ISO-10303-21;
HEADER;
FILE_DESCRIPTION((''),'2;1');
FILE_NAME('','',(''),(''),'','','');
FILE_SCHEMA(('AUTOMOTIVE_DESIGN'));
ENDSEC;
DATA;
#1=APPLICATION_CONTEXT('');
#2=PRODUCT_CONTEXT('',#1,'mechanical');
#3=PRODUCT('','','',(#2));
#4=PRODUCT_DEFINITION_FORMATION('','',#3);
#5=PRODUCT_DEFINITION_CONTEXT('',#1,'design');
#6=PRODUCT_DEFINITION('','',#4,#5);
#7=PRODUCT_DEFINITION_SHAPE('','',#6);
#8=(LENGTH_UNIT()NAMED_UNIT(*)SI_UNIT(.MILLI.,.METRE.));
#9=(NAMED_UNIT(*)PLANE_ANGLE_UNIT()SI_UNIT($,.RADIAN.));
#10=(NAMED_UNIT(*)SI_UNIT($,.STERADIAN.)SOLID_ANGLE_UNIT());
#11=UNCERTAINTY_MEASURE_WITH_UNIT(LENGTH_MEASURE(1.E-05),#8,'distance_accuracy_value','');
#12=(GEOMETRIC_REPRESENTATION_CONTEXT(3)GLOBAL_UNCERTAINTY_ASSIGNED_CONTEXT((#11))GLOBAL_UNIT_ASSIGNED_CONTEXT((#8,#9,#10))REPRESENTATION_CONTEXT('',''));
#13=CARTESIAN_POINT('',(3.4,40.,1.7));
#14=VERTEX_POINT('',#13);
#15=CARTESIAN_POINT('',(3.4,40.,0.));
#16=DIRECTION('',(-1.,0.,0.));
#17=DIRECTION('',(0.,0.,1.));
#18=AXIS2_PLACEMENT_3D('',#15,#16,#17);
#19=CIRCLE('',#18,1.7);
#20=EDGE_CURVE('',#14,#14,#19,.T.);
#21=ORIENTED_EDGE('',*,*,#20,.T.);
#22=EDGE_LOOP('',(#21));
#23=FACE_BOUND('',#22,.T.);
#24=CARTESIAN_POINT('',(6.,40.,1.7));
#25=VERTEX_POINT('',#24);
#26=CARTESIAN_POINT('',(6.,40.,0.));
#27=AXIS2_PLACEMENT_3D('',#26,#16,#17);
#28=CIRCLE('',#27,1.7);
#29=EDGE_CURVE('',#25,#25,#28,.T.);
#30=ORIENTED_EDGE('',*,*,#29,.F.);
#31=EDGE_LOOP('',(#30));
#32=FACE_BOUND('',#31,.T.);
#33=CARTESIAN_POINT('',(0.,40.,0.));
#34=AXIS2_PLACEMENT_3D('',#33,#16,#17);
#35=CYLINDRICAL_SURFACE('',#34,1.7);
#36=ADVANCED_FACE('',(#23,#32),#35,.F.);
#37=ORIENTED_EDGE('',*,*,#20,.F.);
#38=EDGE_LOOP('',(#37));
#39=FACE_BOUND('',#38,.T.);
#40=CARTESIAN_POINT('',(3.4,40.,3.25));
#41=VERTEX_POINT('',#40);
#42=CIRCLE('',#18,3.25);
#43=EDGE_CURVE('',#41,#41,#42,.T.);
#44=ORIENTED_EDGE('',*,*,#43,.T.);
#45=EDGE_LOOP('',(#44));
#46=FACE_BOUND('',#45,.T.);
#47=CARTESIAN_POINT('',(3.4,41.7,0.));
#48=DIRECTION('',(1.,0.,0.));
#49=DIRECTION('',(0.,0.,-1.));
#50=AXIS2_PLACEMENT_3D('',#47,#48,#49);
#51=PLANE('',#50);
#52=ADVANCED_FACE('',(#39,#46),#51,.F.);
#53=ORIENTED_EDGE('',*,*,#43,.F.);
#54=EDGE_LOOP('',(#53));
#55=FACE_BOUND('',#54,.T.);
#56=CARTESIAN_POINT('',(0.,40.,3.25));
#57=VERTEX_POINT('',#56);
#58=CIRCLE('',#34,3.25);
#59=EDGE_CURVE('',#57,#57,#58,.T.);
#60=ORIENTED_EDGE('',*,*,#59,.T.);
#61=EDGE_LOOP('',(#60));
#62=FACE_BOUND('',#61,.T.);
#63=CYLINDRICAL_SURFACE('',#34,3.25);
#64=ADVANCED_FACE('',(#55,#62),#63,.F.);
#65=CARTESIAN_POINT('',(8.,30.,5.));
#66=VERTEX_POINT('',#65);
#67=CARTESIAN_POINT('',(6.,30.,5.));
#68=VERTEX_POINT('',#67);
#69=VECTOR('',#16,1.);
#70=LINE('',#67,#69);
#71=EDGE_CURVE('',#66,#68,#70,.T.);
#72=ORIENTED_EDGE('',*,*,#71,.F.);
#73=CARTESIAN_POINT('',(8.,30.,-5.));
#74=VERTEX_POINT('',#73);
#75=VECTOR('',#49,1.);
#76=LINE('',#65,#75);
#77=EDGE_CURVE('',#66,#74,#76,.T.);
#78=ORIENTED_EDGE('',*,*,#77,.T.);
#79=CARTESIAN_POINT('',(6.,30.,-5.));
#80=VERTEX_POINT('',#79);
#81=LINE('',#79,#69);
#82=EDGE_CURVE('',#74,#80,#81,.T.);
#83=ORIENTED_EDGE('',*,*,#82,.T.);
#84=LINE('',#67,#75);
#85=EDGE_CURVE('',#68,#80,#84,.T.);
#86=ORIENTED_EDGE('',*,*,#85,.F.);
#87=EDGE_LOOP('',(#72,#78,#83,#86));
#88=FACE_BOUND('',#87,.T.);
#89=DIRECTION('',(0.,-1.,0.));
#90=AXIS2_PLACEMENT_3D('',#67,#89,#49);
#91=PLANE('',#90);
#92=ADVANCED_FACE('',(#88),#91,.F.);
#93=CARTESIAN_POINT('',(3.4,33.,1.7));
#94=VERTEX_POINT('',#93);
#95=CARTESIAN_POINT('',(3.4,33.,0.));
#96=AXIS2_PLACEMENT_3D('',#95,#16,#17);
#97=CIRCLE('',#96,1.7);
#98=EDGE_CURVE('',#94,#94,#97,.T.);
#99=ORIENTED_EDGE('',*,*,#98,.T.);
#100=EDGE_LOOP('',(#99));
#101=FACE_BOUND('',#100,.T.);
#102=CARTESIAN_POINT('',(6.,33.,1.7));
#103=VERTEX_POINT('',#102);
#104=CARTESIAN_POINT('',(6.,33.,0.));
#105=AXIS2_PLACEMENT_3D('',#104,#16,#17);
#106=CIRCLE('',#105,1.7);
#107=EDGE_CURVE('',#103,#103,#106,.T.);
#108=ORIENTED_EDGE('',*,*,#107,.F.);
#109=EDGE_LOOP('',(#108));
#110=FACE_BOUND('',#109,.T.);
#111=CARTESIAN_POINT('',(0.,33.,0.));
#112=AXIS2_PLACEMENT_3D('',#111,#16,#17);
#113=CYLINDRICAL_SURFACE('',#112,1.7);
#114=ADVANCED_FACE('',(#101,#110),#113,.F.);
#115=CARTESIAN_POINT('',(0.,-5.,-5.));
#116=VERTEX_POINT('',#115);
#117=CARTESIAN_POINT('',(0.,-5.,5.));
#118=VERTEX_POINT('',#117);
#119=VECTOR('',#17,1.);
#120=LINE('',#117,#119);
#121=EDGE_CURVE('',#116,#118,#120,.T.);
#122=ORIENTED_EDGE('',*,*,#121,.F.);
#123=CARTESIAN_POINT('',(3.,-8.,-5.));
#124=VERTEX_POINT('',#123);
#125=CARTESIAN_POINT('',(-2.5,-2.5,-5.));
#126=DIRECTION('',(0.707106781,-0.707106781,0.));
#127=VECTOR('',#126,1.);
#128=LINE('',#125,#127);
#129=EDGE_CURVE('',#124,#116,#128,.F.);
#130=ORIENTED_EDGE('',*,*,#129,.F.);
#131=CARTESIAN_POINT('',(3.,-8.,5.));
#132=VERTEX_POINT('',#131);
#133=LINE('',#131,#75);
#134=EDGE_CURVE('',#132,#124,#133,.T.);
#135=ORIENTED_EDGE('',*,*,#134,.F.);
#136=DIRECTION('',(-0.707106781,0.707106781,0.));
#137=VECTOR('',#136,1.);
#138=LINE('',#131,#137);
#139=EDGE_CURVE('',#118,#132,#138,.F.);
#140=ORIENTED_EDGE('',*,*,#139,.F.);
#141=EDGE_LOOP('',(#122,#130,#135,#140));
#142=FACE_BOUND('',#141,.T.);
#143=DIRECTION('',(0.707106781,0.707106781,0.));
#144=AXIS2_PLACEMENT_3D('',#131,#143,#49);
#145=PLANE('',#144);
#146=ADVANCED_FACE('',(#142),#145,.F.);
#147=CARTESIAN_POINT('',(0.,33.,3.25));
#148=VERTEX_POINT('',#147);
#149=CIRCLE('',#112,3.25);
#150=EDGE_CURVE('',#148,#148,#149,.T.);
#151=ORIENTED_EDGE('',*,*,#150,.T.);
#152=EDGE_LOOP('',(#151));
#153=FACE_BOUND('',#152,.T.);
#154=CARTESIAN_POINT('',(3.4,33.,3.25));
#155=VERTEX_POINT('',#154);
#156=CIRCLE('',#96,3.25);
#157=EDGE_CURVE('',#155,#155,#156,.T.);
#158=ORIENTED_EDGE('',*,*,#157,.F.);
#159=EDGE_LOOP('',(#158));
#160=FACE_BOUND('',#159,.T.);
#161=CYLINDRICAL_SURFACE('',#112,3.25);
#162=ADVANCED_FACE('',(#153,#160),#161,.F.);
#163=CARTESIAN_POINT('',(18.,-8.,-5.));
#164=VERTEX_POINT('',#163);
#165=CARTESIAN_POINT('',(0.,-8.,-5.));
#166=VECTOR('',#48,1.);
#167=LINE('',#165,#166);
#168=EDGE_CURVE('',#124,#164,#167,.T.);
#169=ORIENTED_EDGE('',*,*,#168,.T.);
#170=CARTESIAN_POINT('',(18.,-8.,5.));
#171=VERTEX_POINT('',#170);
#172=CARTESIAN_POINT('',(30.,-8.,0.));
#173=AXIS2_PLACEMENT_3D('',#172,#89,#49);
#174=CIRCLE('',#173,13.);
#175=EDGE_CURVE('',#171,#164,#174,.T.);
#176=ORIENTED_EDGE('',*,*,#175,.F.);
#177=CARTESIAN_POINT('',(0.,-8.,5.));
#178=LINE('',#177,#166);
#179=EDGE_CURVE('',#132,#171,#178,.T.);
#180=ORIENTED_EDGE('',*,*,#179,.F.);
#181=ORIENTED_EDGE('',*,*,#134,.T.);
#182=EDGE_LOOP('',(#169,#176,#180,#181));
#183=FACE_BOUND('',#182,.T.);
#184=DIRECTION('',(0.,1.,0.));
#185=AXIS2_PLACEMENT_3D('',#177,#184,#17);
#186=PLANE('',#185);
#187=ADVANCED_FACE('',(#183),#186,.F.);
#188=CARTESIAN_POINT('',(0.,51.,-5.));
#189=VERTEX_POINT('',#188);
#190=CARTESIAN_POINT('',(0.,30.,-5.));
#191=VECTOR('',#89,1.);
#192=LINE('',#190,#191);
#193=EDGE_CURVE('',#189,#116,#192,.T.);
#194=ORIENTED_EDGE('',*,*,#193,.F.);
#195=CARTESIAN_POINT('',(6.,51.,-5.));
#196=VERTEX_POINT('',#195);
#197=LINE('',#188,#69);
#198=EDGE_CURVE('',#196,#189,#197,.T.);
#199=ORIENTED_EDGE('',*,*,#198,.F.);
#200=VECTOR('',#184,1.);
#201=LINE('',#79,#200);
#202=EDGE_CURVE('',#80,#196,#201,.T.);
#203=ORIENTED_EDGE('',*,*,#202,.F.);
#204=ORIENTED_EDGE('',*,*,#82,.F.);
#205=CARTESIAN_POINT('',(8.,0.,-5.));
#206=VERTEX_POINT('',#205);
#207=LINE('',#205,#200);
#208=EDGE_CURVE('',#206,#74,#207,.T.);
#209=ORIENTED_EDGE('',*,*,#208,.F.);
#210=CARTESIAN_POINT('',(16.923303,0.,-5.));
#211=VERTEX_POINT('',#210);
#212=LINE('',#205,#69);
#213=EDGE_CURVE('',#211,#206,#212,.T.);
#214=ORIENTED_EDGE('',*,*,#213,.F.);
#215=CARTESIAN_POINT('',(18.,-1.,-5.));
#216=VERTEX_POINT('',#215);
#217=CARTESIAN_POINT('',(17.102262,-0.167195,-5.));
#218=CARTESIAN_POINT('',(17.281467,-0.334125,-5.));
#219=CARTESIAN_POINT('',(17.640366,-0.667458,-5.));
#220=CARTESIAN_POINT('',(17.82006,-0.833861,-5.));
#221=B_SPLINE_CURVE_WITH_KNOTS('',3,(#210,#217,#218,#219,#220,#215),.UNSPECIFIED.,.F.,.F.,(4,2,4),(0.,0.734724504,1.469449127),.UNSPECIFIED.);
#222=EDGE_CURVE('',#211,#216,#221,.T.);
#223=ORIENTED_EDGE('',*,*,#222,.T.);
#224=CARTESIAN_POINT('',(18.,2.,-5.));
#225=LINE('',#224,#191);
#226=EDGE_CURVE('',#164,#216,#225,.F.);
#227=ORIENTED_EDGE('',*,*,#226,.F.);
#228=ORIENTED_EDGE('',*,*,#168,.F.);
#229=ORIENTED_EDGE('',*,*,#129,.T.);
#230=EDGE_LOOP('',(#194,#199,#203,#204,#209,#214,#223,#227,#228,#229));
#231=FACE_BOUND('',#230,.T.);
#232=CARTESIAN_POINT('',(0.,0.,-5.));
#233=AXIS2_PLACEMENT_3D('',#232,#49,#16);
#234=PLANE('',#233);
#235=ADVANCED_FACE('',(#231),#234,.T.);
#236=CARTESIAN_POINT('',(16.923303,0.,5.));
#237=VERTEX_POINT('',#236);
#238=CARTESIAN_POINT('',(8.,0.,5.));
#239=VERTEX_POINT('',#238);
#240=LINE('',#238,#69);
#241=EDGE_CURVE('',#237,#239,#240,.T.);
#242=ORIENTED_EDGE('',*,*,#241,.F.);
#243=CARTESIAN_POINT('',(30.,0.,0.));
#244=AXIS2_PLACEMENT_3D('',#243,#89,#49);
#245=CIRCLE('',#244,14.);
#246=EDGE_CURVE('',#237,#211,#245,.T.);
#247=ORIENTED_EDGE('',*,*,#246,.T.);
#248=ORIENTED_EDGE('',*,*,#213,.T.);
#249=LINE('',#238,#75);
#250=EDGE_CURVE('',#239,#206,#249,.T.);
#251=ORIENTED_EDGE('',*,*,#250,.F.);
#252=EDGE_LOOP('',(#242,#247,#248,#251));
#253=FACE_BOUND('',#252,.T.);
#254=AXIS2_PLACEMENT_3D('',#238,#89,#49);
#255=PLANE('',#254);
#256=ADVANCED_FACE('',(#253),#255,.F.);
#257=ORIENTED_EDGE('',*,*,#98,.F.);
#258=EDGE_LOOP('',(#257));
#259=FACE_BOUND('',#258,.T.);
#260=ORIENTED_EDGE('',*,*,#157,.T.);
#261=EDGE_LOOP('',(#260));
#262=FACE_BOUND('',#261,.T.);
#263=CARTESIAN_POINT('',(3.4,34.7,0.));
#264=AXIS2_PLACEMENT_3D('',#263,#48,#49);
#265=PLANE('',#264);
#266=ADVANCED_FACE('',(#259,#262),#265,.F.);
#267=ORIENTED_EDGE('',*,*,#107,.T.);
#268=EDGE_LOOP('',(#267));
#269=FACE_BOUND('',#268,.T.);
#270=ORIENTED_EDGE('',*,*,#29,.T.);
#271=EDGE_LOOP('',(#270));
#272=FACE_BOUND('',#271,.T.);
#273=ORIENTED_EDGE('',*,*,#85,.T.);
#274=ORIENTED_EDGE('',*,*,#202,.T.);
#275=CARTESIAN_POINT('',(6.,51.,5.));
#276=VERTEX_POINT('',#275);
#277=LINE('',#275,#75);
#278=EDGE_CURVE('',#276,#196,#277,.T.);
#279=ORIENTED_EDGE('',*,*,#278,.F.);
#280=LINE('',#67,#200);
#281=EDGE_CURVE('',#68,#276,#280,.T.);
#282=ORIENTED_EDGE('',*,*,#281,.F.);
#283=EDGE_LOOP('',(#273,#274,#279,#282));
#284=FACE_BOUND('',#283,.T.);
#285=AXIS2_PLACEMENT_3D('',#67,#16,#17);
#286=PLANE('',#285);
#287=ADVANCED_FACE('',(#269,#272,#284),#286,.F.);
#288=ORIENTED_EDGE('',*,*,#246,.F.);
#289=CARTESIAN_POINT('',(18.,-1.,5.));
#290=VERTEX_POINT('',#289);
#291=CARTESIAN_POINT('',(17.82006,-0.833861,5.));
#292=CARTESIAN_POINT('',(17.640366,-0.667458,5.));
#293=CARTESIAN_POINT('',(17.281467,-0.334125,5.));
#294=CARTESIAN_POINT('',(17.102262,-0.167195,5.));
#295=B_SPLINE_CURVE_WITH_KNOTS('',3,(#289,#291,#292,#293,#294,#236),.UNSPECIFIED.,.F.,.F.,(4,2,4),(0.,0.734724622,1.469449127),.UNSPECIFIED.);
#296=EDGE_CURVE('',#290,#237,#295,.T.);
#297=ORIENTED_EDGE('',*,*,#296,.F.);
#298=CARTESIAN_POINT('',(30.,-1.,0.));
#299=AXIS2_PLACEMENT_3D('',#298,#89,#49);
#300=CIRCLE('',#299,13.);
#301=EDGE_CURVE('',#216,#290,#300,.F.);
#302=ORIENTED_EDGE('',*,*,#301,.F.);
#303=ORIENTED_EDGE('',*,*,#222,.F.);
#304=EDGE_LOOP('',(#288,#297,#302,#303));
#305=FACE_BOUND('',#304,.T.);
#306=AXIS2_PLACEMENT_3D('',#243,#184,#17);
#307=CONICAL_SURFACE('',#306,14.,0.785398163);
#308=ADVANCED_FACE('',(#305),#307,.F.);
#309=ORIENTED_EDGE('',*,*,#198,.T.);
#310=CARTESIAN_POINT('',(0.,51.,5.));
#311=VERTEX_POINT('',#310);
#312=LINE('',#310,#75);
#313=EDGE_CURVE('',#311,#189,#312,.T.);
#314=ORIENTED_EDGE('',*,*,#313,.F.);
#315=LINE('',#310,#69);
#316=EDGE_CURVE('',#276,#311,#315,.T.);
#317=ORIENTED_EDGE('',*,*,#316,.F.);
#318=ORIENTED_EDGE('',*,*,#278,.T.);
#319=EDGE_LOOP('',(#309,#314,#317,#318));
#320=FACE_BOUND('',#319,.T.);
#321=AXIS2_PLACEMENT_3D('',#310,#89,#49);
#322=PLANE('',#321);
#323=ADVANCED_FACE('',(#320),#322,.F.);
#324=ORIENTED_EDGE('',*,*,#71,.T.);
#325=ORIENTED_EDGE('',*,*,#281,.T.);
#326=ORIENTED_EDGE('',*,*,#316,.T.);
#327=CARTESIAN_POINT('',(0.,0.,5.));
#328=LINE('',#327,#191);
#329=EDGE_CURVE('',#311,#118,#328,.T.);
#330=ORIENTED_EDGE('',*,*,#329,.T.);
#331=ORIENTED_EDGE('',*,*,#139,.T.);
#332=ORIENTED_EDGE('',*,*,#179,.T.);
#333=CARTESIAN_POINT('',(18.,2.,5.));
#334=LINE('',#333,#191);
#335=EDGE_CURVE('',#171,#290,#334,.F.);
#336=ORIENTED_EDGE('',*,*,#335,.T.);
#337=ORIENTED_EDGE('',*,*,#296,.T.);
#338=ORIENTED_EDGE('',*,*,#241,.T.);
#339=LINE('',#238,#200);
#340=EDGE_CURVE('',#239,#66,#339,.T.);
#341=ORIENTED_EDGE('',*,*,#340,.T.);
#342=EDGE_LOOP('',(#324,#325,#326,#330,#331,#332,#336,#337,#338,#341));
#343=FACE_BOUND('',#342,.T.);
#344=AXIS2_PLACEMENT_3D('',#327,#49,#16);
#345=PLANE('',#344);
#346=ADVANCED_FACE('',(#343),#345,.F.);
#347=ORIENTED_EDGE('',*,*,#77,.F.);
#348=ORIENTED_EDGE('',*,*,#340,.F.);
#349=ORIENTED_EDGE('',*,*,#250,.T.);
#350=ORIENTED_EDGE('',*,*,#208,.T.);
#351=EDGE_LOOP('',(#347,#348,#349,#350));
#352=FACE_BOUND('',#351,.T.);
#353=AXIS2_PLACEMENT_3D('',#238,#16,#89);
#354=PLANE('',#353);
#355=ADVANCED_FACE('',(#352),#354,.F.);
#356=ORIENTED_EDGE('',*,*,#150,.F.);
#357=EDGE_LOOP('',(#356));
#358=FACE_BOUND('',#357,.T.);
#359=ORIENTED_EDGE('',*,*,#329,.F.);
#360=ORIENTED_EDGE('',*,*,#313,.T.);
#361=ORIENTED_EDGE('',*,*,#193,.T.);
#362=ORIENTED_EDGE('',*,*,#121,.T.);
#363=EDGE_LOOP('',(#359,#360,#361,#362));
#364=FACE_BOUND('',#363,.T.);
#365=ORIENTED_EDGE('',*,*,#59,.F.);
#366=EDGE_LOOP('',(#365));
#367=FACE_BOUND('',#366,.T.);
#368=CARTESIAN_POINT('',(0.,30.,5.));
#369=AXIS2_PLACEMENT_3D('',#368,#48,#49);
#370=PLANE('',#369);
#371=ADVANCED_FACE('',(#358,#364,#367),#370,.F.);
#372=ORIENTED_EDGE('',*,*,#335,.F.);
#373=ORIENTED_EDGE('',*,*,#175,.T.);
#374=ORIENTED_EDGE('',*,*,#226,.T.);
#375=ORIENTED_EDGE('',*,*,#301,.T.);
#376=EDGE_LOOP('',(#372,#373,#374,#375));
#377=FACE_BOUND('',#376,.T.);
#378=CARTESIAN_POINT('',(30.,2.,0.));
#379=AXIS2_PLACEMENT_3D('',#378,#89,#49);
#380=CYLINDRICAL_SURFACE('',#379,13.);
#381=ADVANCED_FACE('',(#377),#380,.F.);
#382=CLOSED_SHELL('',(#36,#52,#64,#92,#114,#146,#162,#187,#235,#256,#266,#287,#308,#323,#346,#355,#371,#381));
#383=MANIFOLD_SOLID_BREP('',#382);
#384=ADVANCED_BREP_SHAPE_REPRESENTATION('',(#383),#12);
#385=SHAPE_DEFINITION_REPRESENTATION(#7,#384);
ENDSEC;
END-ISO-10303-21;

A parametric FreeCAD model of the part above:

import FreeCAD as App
import Part
import Sketcher


def edges_at(feature, points):
    """Names of the edges that pass closest to the given points."""
    edges = feature.Shape.Edges
    near = lambda p: min(range(len(edges)), key=lambda i: edges[i].distToShape(Part.Vertex(*p))[0])
    return sorted({f"Edge{near(p) + 1}" for p in points})

doc = App.newDocument("Part")
body = doc.addObject("PartDesign::Body", "Body")

# Sketch on XY plane
sketch1 = body.newObject("Sketcher::SketchObject", "Sketch")
sketch1.AttachmentSupport = (doc.getObject("XY_Plane"), [""])
sketch1.MapMode = "FlatFace"
sketch1.addGeometry([
    Part.LineSegment(App.Vector(20, 0, 0), App.Vector(8, 0, 0)),  # 0
    Part.LineSegment(App.Vector(8, 0, 0), App.Vector(8, 30, 0)),  # 1
    Part.LineSegment(App.Vector(8, 30, 0), App.Vector(6, 30, 0)),  # 2
    Part.LineSegment(App.Vector(6, 30, 0), App.Vector(6, 51, 0)),  # 3
    Part.LineSegment(App.Vector(6, 51, 0), App.Vector(0, 51, 0)),  # 4
    Part.LineSegment(App.Vector(0, 51, 0), App.Vector(0, -8, 0)),  # 5
    Part.LineSegment(App.Vector(0, -8, 0), App.Vector(20, -8, 0)),  # 6
    Part.LineSegment(App.Vector(20, -8, 0), App.Vector(20, 0, 0)),  # 7
], False)
sketch1.addConstraint([
    Sketcher.Constraint("Coincident", 0, 2, 1, 1),
    Sketcher.Constraint("Coincident", 1, 2, 2, 1),
    Sketcher.Constraint("Coincident", 2, 2, 3, 1),
    Sketcher.Constraint("Coincident", 3, 2, 4, 1),
    Sketcher.Constraint("Coincident", 4, 2, 5, 1),
    Sketcher.Constraint("Coincident", 5, 2, 6, 1),
    Sketcher.Constraint("Coincident", 6, 2, 7, 1),
    Sketcher.Constraint("Coincident", 7, 2, 0, 1),
    Sketcher.Constraint("Horizontal", 0),
    Sketcher.Constraint("Vertical", 1),
    Sketcher.Constraint("Horizontal", 2),
    Sketcher.Constraint("Vertical", 3),
    Sketcher.Constraint("Horizontal", 4),
    Sketcher.Constraint("Vertical", 5),
    Sketcher.Constraint("Horizontal", 6),
    Sketcher.Constraint("Vertical", 7),
    Sketcher.Constraint("PointOnObject", 0, 2, -1),
    Sketcher.Constraint("PointOnObject", 4, 2, -2),
    Sketcher.Constraint("DistanceX", 0, 2, 0, 1, 12.0),
    Sketcher.Constraint("DistanceX", 2, 2, 2, 1, 2.0),
    Sketcher.Constraint("DistanceX", 4, 2, 4, 1, 6.0),
    Sketcher.Constraint("DistanceY", 1, 1, 1, 2, 30.0),
    Sketcher.Constraint("DistanceY", 3, 1, 3, 2, 21.0),
    Sketcher.Constraint("DistanceY", 5, 2, 5, 1, 59.0),
])
pad1 = body.newObject("PartDesign::Pad", "Pad")
pad1.Profile = sketch1
pad1.Length = 10
pad1.Midplane = True

# Sketch on XZ plane
sketch2 = body.newObject("Sketcher::SketchObject", "Sketch001")
sketch2.AttachmentSupport = (doc.getObject("XZ_Plane"), [""])
sketch2.MapMode = "FlatFace"
sketch2.AttachmentOffset = App.Placement(App.Vector(0, 0, 8), App.Rotation())
sketch2.addGeometry(Part.Circle(App.Vector(30, 0, 0), App.Vector(0, 0, 1), 13), False)
sketch2.addConstraint([
    Sketcher.Constraint("PointOnObject", 0, 3, -1),
    Sketcher.Constraint("Diameter", 0, 26.0),
    Sketcher.Constraint("DistanceX", -1, 1, 0, 3, 30.0),
])
pocket1 = body.newObject("PartDesign::Pocket", "Pocket")
pocket1.Profile = sketch2
pocket1.Length = 10
doc.recompute()

chamfer = body.newObject("PartDesign::Chamfer", "Chamfer")
chamfer.Base = (pocket1, edges_at(pocket1, [(0, -8, 0)]))
chamfer.Size = 3
doc.recompute()

chamfer2 = body.newObject("PartDesign::Chamfer", "Chamfer001")
chamfer2.Base = (chamfer, edges_at(chamfer, [(17, 0, 0)]))
chamfer2.Size = 1

# Sketch on YZ plane
sketch3 = body.newObject("Sketcher::SketchObject", "Sketch002")
sketch3.AttachmentSupport = (doc.getObject("YZ_Plane"), [""])
sketch3.MapMode = "FlatFace"
sketch3.addGeometry([
    Part.Circle(App.Vector(40, 0, 0), App.Vector(0, 0, 1), 1.7),
    Part.Circle(App.Vector(33, 0, 0), App.Vector(0, 0, 1), 1.7),
], False)
sketch3.addConstraint([
    Sketcher.Constraint("Equal", 0, 1),
    Sketcher.Constraint("PointOnObject", 0, 3, -1),
    Sketcher.Constraint("PointOnObject", 1, 3, -1),
    Sketcher.Constraint("Diameter", 0, 3.4),
    Sketcher.Constraint("DistanceX", -1, 1, 0, 3, 40.0),
    Sketcher.Constraint("DistanceX", -1, 1, 1, 3, 33.0),
])
doc.recompute()
hole = body.newObject("PartDesign::Hole", "Hole")
hole.Profile = sketch3
hole.ThreadType = "None"
hole.Diameter = 3.4
hole.DepthType = "ThroughAll"
hole.HoleCutType = "Counterbore"
hole.HoleCutDiameter = 6.5
hole.HoleCutDepth = 3.4
hole.Reversed = True

doc.recompute()
